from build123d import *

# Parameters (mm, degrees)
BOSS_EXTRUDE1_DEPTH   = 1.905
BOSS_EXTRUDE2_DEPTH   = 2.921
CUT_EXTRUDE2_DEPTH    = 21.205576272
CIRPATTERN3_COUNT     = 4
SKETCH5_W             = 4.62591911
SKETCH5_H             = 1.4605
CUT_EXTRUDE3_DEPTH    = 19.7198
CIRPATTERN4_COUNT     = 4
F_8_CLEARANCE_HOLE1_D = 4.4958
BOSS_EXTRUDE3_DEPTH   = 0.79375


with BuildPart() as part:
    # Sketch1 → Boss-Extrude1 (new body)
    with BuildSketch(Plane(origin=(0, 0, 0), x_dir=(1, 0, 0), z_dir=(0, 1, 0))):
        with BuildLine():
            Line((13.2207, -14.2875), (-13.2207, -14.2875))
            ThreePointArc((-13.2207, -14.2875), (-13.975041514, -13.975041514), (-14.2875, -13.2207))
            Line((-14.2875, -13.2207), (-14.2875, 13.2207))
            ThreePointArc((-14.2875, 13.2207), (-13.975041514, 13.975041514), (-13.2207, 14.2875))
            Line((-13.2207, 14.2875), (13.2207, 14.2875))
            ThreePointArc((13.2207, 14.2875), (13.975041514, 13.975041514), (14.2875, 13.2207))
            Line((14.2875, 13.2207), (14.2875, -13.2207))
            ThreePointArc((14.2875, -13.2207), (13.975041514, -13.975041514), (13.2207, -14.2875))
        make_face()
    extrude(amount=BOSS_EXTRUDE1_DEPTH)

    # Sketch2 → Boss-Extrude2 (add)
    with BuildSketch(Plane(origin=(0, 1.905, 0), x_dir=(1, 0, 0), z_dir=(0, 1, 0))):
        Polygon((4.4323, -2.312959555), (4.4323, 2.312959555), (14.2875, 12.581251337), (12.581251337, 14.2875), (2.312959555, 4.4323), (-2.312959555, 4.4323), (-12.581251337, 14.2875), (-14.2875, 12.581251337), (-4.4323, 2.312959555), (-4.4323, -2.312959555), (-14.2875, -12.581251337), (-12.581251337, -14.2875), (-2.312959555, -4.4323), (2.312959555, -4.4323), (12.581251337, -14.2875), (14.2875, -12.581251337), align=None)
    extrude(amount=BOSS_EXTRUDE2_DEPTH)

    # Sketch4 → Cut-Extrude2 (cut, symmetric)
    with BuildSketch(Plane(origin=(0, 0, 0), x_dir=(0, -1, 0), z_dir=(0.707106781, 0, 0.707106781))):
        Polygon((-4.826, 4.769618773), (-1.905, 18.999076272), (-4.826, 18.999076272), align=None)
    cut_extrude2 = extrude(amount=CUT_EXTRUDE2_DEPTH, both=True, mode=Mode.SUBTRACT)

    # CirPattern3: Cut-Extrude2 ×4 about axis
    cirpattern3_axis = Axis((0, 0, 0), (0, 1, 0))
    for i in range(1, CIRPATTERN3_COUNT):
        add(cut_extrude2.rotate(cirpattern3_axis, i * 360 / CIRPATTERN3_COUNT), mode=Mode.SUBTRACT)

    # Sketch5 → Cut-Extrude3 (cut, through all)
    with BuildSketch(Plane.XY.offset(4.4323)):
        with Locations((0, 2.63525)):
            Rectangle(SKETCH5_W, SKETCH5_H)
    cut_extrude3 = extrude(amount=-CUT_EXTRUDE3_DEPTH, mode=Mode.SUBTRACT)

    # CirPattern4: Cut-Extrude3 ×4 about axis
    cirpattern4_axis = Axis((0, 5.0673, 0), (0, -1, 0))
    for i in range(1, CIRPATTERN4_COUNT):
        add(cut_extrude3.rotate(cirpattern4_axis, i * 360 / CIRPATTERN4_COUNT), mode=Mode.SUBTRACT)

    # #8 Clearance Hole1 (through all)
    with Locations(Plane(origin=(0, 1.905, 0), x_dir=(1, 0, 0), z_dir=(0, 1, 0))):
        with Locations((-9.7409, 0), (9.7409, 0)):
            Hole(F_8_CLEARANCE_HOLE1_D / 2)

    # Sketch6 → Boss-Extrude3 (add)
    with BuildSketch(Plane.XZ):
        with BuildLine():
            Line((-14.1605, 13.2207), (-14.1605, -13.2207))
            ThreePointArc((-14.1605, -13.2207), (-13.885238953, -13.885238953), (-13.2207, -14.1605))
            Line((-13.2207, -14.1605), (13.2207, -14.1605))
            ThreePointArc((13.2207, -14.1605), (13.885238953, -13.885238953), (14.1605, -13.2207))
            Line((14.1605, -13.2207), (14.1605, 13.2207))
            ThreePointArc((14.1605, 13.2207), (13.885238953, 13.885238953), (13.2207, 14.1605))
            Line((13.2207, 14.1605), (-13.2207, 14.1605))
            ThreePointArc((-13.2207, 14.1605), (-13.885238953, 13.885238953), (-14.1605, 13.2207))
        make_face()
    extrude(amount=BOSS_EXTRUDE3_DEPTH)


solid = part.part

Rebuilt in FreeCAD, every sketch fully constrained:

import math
import FreeCAD as App
import Part
import Sketcher
from FreeCAD import Vector
Q = App.Units.Quantity


def add_polygon(sketch, points):
    """Adds a closed chain of lines whose ends are joined by coincident constraints."""
    first, n = sketch.GeometryCount, len(points)
    for a, b in zip(points, points[1:] + points[:1]):
        sketch.addGeometry(Part.LineSegment(App.Vector(*a, 0), App.Vector(*b, 0)), False)
    for i in range(n):
        sketch.addConstraint(Sketcher.Constraint("Coincident", first + i, 2, first + (i + 1) % n, 1))

doc = App.newDocument("Part")
body = doc.addObject("PartDesign::Body", "Body")

sketch1 = doc.addObject("Sketcher::SketchObject", "Sketch")
body.addObject(sketch1)
sketch1.AttachmentSupport = (doc.XZ_Plane, [""])
sketch1.MapMode = "FlatFace"
sketch1.addGeometry([
    Part.LineSegment(Vector(-13.2207, 14.2875, 0), Vector(13.2207, 14.2875, 0)),
    Part.ArcOfCircle(Part.Circle(Vector(13.2207, 13.2207, 0), Vector(0, 0, 1), 1.0668), math.radians(0), math.radians(90)),
    Part.LineSegment(Vector(14.2875, 13.2207, 0), Vector(14.2875, -13.2207, 0)),
    Part.ArcOfCircle(Part.Circle(Vector(13.2207, -13.2207, 0), Vector(0, 0, 1), 1.0668), math.radians(-90), math.radians(0)),
    Part.LineSegment(Vector(13.2207, -14.2875, 0), Vector(-13.2207, -14.2875, 0)),
    Part.ArcOfCircle(Part.Circle(Vector(-13.2207, -13.2207, 0), Vector(0, 0, 1), 1.0668), math.radians(-180), math.radians(-90)),
    Part.LineSegment(Vector(-14.2875, -13.2207, 0), Vector(-14.2875, 13.2207, 0)),
    Part.ArcOfCircle(Part.Circle(Vector(-13.2207, 13.2207, 0), Vector(0, 0, 1), 1.0668), math.radians(90), math.radians(180)),
], False)
sketch1.addConstraint([
    Sketcher.Constraint("Tangent", 0, 2, 1, 2),
    Sketcher.Constraint("Tangent", 1, 1, 2, 1),
    Sketcher.Constraint("Tangent", 2, 2, 3, 2),
    Sketcher.Constraint("Tangent", 3, 1, 4, 1),
    Sketcher.Constraint("Tangent", 4, 2, 5, 2),
    Sketcher.Constraint("Tangent", 5, 1, 6, 1),
    Sketcher.Constraint("Tangent", 6, 2, 7, 2),
    Sketcher.Constraint("Tangent", 7, 1, 0, 1),
    Sketcher.Constraint("Horizontal", 0),
    Sketcher.Constraint("Vertical", 2),
    Sketcher.Constraint("Horizontal", 4),
    Sketcher.Constraint("Vertical", 6),
    Sketcher.Constraint("Equal", 1, 3),
    Sketcher.Constraint("Equal", 3, 5),
    Sketcher.Constraint("Equal", 5, 7),
    Sketcher.Constraint("Symmetric", 1, 3, 5, 3, -1, 1),
    Sketcher.Constraint("Equal", 4, 2),
    Sketcher.Constraint("Radius", 1, Q("0.042 in")),
    Sketcher.Constraint("DistanceX", 0, 1, 0, 2, Q("1.041 in")),
])
pad1 = doc.addObject("PartDesign::Pad", "Pad")
body.addObject(pad1)
pad1.Profile = sketch1
pad1.Length = Q("0.075 in")
pad1.Reversed = True

sketch2 = doc.addObject("Sketcher::SketchObject", "Sketch001")
body.addObject(sketch2)
sketch2.AttachmentSupport = (doc.XZ_Plane, [""])
sketch2.MapMode = "FlatFace"
sketch2.AttachmentOffset = App.Placement(Vector(0, 0, -0.075 * 25.4), App.Rotation())
add_polygon(sketch2, [(4.4323, 2.31296), (4.4323, -2.31296), (14.2875, -12.581251), (12.581251, -14.2875), (2.31296, -4.4323), (-2.31296, -4.4323), (-12.581251, -14.2875), (-14.2875, -12.581251), (-4.4323, -2.31296), (-4.4323, 2.31296), (-14.2875, 12.581251), (-12.581251, 14.2875), (-2.31296, 4.4323), (2.31296, 4.4323), (12.581251, 14.2875), (14.2875, 12.581251)])
sketch2.addConstraint([
    Sketcher.Constraint("Vertical", 0),
    Sketcher.Constraint("Horizontal", 4),
    Sketcher.Constraint("Vertical", 8),
    Sketcher.Constraint("Horizontal", 12),
    Sketcher.Constraint("Symmetric", 0, 2, 8, 2, -1, 1),
    Sketcher.Constraint("Symmetric", 1, 2, 9, 2, -1, 1),
    Sketcher.Constraint("Symmetric", 2, 2, 10, 2, -1, 1),
    Sketcher.Constraint("Symmetric", 3, 2, 11, 2, -1, 1),
    Sketcher.Constraint("Symmetric", 5, 2, 13, 2, -1, 1),
    Sketcher.Constraint("Symmetric", 6, 2, 14, 2, -1, 1),
    Sketcher.Constraint("Symmetric", 2, 2, 5, 2, -2),
    Sketcher.Constraint("Symmetric", 1, 2, 6, 2, -2),
    Sketcher.Constraint("Perpendicular", 1, 5),
    Sketcher.Constraint("Perpendicular", 2, 6),
    Sketcher.Constraint("Perpendicular", 3, 7),
    Sketcher.Constraint("Perpendicular", 9, 13),
    Sketcher.Constraint("Perpendicular", 11, 15),
    Sketcher.Constraint("Horizontal", 0, 2, 7, 2),
    Sketcher.Constraint("Equal", 12, 0),
    Sketcher.Constraint("Equal", 1, 3),
    Sketcher.Constraint("Distance", 2, Q("0.095 in")),
    Sketcher.Constraint("DistanceX", -1, 1, 1, 2, Q("0.5625 in")),
    Sketcher.Constraint("DistanceX", 0, 2, 1, 2, Q("0.388 in")),
    Sketcher.Constraint("DistanceX", 4, 2, 4, 1, Q("4.625919 mm")),
])
pad2 = doc.addObject("PartDesign::Pad", "Pad001")
body.addObject(pad2)
pad2.Profile = sketch2
pad2.Length = Q("0.115 in")
pad2.Reversed = True

sketch3 = doc.addObject("Sketcher::SketchObject", "Sketch002")
body.addObject(sketch3)
sketch3.Placement = App.Placement(Vector(0, 0, 0), App.Rotation(Vector(0, -1, 0), Vector(0.707106781, 0, -0.707106781), Vector(0.707106781, 0, 0.707106781), "ZXY"))
add_polygon(sketch3, [(-4.826, 4.769619), (-1.905, 18.999076), (-4.826, 18.999076)])
sketch3.addConstraint([
    Sketcher.Constraint("Horizontal", 1),
    Sketcher.Constraint("Vertical", 2),
    Sketcher.Constraint("DistanceX", 1, 2, 1, 1, Q("0.115 in")),
    Sketcher.Constraint("DistanceX", 1, 2, -1, 1, Q("0.19 in")),
    Sketcher.Constraint("DistanceY", 2, 2, 2, 1, Q("14.229457 mm")),
    Sketcher.Constraint("DistanceY", -1, 1, 2, 2, Q("4.769619 mm")),
])
pocket1 = doc.addObject("PartDesign::Pocket", "Pocket")
body.addObject(pocket1)
pocket1.Profile = sketch3
pocket1.Length = 42.411153
pocket1.Midplane = True
doc.recompute()

polarpattern = doc.addObject("PartDesign::PolarPattern", "PolarPattern")
body.addObject(polarpattern)
polarpattern.Originals = [pocket1]
polarpattern.Axis = (doc.Y_Axis, [""])
polarpattern.Angle = 360
polarpattern.Occurrences = 4
body.Tip = polarpattern

sketch4 = doc.addObject("Sketcher::SketchObject", "Sketch003")
body.addObject(sketch4)
sketch4.AttachmentSupport = (doc.XY_Plane, [""])
sketch4.MapMode = "FlatFace"
sketch4.AttachmentOffset = App.Placement(Vector(0, 0, 0.1745 * 25.4), App.Rotation())
add_polygon(sketch4, [(-2.31296, 3.3655), (-2.31296, 1.905), (2.31296, 1.905), (2.31296, 3.3655)])
sketch4.addConstraint([
    Sketcher.Constraint("Vertical", 0),
    Sketcher.Constraint("Horizontal", 1),
    Sketcher.Constraint("Vertical", 2),
    Sketcher.Constraint("Horizontal", 3),
    Sketcher.Constraint("DistanceY", 0, 2, 0, 1, Q("0.0575 in")),
    Sketcher.Constraint("DistanceY", -1, 1, 0, 2, Q("0.075 in")),
    Sketcher.Constraint("DistanceX", 1, 1, 1, 2, Q("4.625919 mm")),
    Sketcher.Constraint("DistanceX", 0, 2, -1, 1, Q("2.31296 mm")),
])
pocket2 = doc.addObject("PartDesign::Pocket", "Pocket001")
body.addObject(pocket2)
pocket2.Profile = sketch4
pocket2.Type = "ThroughAll"
doc.recompute()

polarpattern2 = doc.addObject("PartDesign::PolarPattern", "PolarPattern001")
body.addObject(polarpattern2)
polarpattern2.Originals = [pocket2]
polarpattern2.Axis = (doc.Y_Axis, [""])
polarpattern2.Angle = 360
polarpattern2.Occurrences = 4
body.Tip = polarpattern2

sketch5 = doc.addObject("Sketcher::SketchObject", "Sketch004")
body.addObject(sketch5)
sketch5.AttachmentSupport = (doc.XZ_Plane, [""])
sketch5.MapMode = "FlatFace"
sketch5.AttachmentOffset = App.Placement(Vector(0, 0, -0.075 * 25.4), App.Rotation())
sketch5.addGeometry([
    Part.Circle(Vector(-9.7409, 0, 0), Vector(0, 0, 1), 2.2479),
    Part.Circle(Vector(9.7409, 0, 0), Vector(0, 0, 1), 2.2479),
], False)
sketch5.addConstraint([
    Sketcher.Constraint("Equal", 0, 1),
    Sketcher.Constraint("Symmetric", 0, 3, 1, 3, -1, 1),
    Sketcher.Constraint("PointOnObject", 0, 3, -1),
    Sketcher.Constraint("Diameter", 0, Q("0.177 in")),
    Sketcher.Constraint("DistanceX", 0, 3, 1, 3, Q("0.767 in")),
])
doc.recompute()
hole = doc.addObject("PartDesign::Hole", "Hole")
body.addObject(hole)
hole.Profile = sketch5
hole.ThreadType = "None"
hole.Diameter = Q("0.177 in")
hole.DepthType = "ThroughAll"
hole.Reversed = True

sketch6 = doc.addObject("Sketcher::SketchObject", "Sketch005")
body.addObject(sketch6)
sketch6.AttachmentSupport = (doc.XZ_Plane, [""])
sketch6.MapMode = "FlatFace"
sketch6.addGeometry([
    Part.LineSegment(Vector(-14.1605, 13.2207, 0), Vector(-14.1605, -13.2207, 0)),
    Part.ArcOfCircle(Part.Circle(Vector(-13.2207, -13.2207, 0), Vector(0, 0, 1), 0.9398), math.radians(180), math.radians(270)),
    Part.LineSegment(Vector(-13.2207, -14.1605, 0), Vector(13.2207, -14.1605, 0)),
    Part.ArcOfCircle(Part.Circle(Vector(13.2207, -13.2207, 0), Vector(0, 0, 1), 0.9398), math.radians(-90), math.radians(0)),
    Part.LineSegment(Vector(14.1605, -13.2207, 0), Vector(14.1605, 13.2207, 0)),
    Part.ArcOfCircle(Part.Circle(Vector(13.2207, 13.2207, 0), Vector(0, 0, 1), 0.9398), math.radians(0), math.radians(90)),
    Part.LineSegment(Vector(13.2207, 14.1605, 0), Vector(-13.2207, 14.1605, 0)),
    Part.ArcOfCircle(Part.Circle(Vector(-13.2207, 13.2207, 0), Vector(0, 0, 1), 0.9398), math.radians(90), math.radians(180)),
], False)
sketch6.addConstraint([
    Sketcher.Constraint("Tangent", 0, 2, 1, 1),
    Sketcher.Constraint("Tangent", 1, 2, 2, 1),
    Sketcher.Constraint("Tangent", 2, 2, 3, 1),
    Sketcher.Constraint("Tangent", 3, 2, 4, 1),
    Sketcher.Constraint("Tangent", 4, 2, 5, 1),
    Sketcher.Constraint("Tangent", 5, 2, 6, 1),
    Sketcher.Constraint("Tangent", 6, 2, 7, 1),
    Sketcher.Constraint("Tangent", 7, 2, 0, 1),
    Sketcher.Constraint("Vertical", 0),
    Sketcher.Constraint("Horizontal", 2),
    Sketcher.Constraint("Vertical", 4),
    Sketcher.Constraint("Horizontal", 6),
    Sketcher.Constraint("Equal", 1, 3),
    Sketcher.Constraint("Equal", 3, 5),
    Sketcher.Constraint("Equal", 5, 7),
    Sketcher.Constraint("Symmetric", 1, 3, 5, 3, -1, 1),
    Sketcher.Constraint("Equal", 6, 0),
    Sketcher.Constraint("Radius", 1, Q("0.037 in")),
    Sketcher.Constraint("DistanceX", 2, 1, 2, 2, Q("1.041 in")),
])
pad3 = doc.addObject("PartDesign::Pad", "Pad002")
body.addObject(pad3)
pad3.Profile = sketch6
pad3.Length = Q("0.03125 in")

doc.recompute()
